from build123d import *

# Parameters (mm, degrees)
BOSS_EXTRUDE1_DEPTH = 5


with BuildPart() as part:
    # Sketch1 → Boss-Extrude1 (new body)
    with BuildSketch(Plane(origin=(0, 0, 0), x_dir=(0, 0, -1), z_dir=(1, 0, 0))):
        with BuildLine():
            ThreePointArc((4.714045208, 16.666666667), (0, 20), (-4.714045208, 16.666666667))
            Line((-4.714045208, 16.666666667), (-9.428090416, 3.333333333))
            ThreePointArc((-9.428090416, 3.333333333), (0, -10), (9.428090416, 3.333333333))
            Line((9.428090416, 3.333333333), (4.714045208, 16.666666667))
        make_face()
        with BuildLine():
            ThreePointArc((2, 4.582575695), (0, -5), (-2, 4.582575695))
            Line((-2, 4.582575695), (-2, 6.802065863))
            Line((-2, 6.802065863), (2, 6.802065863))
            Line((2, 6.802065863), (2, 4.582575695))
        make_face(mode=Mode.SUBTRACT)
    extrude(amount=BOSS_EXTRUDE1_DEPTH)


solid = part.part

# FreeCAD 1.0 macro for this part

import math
import FreeCAD as App
import Part
import Sketcher

doc = App.newDocument("Part")
body = doc.addObject("PartDesign::Body", "Body")

sketch1 = body.newObject("Sketcher::SketchObject", "Sketch")
sketch1.AttachmentSupport = (doc.getObject("YZ_Plane"), [""])
sketch1.MapMode = "FlatFace"
sketch1.addGeometry([
    Part.ArcOfCircle(Part.Circle(App.Vector(15, 0, 0), App.Vector(0, 0, 1), 5), math.radians(-71), math.radians(71)),
    Part.LineSegment(App.Vector(16.7, 4.7, 0), App.Vector(3.3, 9.4, 0)),
    Part.ArcOfCircle(Part.Circle(App.Vector(0, 0, 0), App.Vector(0, 0, 1), 10), math.radians(71), math.radians(289)),
    Part.LineSegment(App.Vector(3.3, -9.4, 0), App.Vector(16.7, -4.7, 0)),
    Part.LineSegment(App.Vector(6.8, -2, 0), App.Vector(4.6, -2, 0)),
    Part.ArcOfCircle(Part.Circle(App.Vector(0, 0, 0), App.Vector(0, 0, 1), 5), math.radians(24), math.radians(336)),
    Part.LineSegment(App.Vector(4.6, 2, 0), App.Vector(6.8, 2, 0)),
    Part.LineSegment(App.Vector(6.8, 2, 0), App.Vector(6.8, -2, 0)),
], False)
sketch1.addConstraint([
    Sketcher.Constraint("Tangent", 0, 2, 1, 1),
    Sketcher.Constraint("Tangent", 1, 2, 2, 1),
    Sketcher.Constraint("Tangent", 2, 2, 3, 1),
    Sketcher.Constraint("Tangent", 3, 2, 0, 1),
    Sketcher.Constraint("Coincident", 4, 2, 5, 2),
    Sketcher.Constraint("Coincident", 5, 1, 6, 1),
    Sketcher.Constraint("Coincident", 6, 2, 7, 1),
    Sketcher.Constraint("Coincident", 7, 2, 4, 1),
    Sketcher.Constraint("Horizontal", 4),
    Sketcher.Constraint("Horizontal", 6),
    Sketcher.Constraint("Vertical", 7),
    Sketcher.Constraint("Coincident", 2, 3, -1, 1),
    Sketcher.Constraint("Coincident", 5, 3, -1, 1),
    Sketcher.Constraint("Equal", 0, 5),
    Sketcher.Constraint("PointOnObject", 0, 3, -1),
    Sketcher.Constraint("Vertical", 4, 2, 5, 1),
    Sketcher.Constraint("Radius", 0, 5.0),
    Sketcher.Constraint("Radius", 2, 10.0),
    Sketcher.Constraint("DistanceY", 7, 2, 7, 1, 4.0),
    Sketcher.Constraint("DistanceX", -1, 1, 0, 3, 15.0),
    Sketcher.Constraint("DistanceX", 4, 2, 4, 1, 2.21949),
])
pad1 = body.newObject("PartDesign::Pad", "Pad")
pad1.Profile = sketch1
pad1.Length = 5

doc.recompute()
